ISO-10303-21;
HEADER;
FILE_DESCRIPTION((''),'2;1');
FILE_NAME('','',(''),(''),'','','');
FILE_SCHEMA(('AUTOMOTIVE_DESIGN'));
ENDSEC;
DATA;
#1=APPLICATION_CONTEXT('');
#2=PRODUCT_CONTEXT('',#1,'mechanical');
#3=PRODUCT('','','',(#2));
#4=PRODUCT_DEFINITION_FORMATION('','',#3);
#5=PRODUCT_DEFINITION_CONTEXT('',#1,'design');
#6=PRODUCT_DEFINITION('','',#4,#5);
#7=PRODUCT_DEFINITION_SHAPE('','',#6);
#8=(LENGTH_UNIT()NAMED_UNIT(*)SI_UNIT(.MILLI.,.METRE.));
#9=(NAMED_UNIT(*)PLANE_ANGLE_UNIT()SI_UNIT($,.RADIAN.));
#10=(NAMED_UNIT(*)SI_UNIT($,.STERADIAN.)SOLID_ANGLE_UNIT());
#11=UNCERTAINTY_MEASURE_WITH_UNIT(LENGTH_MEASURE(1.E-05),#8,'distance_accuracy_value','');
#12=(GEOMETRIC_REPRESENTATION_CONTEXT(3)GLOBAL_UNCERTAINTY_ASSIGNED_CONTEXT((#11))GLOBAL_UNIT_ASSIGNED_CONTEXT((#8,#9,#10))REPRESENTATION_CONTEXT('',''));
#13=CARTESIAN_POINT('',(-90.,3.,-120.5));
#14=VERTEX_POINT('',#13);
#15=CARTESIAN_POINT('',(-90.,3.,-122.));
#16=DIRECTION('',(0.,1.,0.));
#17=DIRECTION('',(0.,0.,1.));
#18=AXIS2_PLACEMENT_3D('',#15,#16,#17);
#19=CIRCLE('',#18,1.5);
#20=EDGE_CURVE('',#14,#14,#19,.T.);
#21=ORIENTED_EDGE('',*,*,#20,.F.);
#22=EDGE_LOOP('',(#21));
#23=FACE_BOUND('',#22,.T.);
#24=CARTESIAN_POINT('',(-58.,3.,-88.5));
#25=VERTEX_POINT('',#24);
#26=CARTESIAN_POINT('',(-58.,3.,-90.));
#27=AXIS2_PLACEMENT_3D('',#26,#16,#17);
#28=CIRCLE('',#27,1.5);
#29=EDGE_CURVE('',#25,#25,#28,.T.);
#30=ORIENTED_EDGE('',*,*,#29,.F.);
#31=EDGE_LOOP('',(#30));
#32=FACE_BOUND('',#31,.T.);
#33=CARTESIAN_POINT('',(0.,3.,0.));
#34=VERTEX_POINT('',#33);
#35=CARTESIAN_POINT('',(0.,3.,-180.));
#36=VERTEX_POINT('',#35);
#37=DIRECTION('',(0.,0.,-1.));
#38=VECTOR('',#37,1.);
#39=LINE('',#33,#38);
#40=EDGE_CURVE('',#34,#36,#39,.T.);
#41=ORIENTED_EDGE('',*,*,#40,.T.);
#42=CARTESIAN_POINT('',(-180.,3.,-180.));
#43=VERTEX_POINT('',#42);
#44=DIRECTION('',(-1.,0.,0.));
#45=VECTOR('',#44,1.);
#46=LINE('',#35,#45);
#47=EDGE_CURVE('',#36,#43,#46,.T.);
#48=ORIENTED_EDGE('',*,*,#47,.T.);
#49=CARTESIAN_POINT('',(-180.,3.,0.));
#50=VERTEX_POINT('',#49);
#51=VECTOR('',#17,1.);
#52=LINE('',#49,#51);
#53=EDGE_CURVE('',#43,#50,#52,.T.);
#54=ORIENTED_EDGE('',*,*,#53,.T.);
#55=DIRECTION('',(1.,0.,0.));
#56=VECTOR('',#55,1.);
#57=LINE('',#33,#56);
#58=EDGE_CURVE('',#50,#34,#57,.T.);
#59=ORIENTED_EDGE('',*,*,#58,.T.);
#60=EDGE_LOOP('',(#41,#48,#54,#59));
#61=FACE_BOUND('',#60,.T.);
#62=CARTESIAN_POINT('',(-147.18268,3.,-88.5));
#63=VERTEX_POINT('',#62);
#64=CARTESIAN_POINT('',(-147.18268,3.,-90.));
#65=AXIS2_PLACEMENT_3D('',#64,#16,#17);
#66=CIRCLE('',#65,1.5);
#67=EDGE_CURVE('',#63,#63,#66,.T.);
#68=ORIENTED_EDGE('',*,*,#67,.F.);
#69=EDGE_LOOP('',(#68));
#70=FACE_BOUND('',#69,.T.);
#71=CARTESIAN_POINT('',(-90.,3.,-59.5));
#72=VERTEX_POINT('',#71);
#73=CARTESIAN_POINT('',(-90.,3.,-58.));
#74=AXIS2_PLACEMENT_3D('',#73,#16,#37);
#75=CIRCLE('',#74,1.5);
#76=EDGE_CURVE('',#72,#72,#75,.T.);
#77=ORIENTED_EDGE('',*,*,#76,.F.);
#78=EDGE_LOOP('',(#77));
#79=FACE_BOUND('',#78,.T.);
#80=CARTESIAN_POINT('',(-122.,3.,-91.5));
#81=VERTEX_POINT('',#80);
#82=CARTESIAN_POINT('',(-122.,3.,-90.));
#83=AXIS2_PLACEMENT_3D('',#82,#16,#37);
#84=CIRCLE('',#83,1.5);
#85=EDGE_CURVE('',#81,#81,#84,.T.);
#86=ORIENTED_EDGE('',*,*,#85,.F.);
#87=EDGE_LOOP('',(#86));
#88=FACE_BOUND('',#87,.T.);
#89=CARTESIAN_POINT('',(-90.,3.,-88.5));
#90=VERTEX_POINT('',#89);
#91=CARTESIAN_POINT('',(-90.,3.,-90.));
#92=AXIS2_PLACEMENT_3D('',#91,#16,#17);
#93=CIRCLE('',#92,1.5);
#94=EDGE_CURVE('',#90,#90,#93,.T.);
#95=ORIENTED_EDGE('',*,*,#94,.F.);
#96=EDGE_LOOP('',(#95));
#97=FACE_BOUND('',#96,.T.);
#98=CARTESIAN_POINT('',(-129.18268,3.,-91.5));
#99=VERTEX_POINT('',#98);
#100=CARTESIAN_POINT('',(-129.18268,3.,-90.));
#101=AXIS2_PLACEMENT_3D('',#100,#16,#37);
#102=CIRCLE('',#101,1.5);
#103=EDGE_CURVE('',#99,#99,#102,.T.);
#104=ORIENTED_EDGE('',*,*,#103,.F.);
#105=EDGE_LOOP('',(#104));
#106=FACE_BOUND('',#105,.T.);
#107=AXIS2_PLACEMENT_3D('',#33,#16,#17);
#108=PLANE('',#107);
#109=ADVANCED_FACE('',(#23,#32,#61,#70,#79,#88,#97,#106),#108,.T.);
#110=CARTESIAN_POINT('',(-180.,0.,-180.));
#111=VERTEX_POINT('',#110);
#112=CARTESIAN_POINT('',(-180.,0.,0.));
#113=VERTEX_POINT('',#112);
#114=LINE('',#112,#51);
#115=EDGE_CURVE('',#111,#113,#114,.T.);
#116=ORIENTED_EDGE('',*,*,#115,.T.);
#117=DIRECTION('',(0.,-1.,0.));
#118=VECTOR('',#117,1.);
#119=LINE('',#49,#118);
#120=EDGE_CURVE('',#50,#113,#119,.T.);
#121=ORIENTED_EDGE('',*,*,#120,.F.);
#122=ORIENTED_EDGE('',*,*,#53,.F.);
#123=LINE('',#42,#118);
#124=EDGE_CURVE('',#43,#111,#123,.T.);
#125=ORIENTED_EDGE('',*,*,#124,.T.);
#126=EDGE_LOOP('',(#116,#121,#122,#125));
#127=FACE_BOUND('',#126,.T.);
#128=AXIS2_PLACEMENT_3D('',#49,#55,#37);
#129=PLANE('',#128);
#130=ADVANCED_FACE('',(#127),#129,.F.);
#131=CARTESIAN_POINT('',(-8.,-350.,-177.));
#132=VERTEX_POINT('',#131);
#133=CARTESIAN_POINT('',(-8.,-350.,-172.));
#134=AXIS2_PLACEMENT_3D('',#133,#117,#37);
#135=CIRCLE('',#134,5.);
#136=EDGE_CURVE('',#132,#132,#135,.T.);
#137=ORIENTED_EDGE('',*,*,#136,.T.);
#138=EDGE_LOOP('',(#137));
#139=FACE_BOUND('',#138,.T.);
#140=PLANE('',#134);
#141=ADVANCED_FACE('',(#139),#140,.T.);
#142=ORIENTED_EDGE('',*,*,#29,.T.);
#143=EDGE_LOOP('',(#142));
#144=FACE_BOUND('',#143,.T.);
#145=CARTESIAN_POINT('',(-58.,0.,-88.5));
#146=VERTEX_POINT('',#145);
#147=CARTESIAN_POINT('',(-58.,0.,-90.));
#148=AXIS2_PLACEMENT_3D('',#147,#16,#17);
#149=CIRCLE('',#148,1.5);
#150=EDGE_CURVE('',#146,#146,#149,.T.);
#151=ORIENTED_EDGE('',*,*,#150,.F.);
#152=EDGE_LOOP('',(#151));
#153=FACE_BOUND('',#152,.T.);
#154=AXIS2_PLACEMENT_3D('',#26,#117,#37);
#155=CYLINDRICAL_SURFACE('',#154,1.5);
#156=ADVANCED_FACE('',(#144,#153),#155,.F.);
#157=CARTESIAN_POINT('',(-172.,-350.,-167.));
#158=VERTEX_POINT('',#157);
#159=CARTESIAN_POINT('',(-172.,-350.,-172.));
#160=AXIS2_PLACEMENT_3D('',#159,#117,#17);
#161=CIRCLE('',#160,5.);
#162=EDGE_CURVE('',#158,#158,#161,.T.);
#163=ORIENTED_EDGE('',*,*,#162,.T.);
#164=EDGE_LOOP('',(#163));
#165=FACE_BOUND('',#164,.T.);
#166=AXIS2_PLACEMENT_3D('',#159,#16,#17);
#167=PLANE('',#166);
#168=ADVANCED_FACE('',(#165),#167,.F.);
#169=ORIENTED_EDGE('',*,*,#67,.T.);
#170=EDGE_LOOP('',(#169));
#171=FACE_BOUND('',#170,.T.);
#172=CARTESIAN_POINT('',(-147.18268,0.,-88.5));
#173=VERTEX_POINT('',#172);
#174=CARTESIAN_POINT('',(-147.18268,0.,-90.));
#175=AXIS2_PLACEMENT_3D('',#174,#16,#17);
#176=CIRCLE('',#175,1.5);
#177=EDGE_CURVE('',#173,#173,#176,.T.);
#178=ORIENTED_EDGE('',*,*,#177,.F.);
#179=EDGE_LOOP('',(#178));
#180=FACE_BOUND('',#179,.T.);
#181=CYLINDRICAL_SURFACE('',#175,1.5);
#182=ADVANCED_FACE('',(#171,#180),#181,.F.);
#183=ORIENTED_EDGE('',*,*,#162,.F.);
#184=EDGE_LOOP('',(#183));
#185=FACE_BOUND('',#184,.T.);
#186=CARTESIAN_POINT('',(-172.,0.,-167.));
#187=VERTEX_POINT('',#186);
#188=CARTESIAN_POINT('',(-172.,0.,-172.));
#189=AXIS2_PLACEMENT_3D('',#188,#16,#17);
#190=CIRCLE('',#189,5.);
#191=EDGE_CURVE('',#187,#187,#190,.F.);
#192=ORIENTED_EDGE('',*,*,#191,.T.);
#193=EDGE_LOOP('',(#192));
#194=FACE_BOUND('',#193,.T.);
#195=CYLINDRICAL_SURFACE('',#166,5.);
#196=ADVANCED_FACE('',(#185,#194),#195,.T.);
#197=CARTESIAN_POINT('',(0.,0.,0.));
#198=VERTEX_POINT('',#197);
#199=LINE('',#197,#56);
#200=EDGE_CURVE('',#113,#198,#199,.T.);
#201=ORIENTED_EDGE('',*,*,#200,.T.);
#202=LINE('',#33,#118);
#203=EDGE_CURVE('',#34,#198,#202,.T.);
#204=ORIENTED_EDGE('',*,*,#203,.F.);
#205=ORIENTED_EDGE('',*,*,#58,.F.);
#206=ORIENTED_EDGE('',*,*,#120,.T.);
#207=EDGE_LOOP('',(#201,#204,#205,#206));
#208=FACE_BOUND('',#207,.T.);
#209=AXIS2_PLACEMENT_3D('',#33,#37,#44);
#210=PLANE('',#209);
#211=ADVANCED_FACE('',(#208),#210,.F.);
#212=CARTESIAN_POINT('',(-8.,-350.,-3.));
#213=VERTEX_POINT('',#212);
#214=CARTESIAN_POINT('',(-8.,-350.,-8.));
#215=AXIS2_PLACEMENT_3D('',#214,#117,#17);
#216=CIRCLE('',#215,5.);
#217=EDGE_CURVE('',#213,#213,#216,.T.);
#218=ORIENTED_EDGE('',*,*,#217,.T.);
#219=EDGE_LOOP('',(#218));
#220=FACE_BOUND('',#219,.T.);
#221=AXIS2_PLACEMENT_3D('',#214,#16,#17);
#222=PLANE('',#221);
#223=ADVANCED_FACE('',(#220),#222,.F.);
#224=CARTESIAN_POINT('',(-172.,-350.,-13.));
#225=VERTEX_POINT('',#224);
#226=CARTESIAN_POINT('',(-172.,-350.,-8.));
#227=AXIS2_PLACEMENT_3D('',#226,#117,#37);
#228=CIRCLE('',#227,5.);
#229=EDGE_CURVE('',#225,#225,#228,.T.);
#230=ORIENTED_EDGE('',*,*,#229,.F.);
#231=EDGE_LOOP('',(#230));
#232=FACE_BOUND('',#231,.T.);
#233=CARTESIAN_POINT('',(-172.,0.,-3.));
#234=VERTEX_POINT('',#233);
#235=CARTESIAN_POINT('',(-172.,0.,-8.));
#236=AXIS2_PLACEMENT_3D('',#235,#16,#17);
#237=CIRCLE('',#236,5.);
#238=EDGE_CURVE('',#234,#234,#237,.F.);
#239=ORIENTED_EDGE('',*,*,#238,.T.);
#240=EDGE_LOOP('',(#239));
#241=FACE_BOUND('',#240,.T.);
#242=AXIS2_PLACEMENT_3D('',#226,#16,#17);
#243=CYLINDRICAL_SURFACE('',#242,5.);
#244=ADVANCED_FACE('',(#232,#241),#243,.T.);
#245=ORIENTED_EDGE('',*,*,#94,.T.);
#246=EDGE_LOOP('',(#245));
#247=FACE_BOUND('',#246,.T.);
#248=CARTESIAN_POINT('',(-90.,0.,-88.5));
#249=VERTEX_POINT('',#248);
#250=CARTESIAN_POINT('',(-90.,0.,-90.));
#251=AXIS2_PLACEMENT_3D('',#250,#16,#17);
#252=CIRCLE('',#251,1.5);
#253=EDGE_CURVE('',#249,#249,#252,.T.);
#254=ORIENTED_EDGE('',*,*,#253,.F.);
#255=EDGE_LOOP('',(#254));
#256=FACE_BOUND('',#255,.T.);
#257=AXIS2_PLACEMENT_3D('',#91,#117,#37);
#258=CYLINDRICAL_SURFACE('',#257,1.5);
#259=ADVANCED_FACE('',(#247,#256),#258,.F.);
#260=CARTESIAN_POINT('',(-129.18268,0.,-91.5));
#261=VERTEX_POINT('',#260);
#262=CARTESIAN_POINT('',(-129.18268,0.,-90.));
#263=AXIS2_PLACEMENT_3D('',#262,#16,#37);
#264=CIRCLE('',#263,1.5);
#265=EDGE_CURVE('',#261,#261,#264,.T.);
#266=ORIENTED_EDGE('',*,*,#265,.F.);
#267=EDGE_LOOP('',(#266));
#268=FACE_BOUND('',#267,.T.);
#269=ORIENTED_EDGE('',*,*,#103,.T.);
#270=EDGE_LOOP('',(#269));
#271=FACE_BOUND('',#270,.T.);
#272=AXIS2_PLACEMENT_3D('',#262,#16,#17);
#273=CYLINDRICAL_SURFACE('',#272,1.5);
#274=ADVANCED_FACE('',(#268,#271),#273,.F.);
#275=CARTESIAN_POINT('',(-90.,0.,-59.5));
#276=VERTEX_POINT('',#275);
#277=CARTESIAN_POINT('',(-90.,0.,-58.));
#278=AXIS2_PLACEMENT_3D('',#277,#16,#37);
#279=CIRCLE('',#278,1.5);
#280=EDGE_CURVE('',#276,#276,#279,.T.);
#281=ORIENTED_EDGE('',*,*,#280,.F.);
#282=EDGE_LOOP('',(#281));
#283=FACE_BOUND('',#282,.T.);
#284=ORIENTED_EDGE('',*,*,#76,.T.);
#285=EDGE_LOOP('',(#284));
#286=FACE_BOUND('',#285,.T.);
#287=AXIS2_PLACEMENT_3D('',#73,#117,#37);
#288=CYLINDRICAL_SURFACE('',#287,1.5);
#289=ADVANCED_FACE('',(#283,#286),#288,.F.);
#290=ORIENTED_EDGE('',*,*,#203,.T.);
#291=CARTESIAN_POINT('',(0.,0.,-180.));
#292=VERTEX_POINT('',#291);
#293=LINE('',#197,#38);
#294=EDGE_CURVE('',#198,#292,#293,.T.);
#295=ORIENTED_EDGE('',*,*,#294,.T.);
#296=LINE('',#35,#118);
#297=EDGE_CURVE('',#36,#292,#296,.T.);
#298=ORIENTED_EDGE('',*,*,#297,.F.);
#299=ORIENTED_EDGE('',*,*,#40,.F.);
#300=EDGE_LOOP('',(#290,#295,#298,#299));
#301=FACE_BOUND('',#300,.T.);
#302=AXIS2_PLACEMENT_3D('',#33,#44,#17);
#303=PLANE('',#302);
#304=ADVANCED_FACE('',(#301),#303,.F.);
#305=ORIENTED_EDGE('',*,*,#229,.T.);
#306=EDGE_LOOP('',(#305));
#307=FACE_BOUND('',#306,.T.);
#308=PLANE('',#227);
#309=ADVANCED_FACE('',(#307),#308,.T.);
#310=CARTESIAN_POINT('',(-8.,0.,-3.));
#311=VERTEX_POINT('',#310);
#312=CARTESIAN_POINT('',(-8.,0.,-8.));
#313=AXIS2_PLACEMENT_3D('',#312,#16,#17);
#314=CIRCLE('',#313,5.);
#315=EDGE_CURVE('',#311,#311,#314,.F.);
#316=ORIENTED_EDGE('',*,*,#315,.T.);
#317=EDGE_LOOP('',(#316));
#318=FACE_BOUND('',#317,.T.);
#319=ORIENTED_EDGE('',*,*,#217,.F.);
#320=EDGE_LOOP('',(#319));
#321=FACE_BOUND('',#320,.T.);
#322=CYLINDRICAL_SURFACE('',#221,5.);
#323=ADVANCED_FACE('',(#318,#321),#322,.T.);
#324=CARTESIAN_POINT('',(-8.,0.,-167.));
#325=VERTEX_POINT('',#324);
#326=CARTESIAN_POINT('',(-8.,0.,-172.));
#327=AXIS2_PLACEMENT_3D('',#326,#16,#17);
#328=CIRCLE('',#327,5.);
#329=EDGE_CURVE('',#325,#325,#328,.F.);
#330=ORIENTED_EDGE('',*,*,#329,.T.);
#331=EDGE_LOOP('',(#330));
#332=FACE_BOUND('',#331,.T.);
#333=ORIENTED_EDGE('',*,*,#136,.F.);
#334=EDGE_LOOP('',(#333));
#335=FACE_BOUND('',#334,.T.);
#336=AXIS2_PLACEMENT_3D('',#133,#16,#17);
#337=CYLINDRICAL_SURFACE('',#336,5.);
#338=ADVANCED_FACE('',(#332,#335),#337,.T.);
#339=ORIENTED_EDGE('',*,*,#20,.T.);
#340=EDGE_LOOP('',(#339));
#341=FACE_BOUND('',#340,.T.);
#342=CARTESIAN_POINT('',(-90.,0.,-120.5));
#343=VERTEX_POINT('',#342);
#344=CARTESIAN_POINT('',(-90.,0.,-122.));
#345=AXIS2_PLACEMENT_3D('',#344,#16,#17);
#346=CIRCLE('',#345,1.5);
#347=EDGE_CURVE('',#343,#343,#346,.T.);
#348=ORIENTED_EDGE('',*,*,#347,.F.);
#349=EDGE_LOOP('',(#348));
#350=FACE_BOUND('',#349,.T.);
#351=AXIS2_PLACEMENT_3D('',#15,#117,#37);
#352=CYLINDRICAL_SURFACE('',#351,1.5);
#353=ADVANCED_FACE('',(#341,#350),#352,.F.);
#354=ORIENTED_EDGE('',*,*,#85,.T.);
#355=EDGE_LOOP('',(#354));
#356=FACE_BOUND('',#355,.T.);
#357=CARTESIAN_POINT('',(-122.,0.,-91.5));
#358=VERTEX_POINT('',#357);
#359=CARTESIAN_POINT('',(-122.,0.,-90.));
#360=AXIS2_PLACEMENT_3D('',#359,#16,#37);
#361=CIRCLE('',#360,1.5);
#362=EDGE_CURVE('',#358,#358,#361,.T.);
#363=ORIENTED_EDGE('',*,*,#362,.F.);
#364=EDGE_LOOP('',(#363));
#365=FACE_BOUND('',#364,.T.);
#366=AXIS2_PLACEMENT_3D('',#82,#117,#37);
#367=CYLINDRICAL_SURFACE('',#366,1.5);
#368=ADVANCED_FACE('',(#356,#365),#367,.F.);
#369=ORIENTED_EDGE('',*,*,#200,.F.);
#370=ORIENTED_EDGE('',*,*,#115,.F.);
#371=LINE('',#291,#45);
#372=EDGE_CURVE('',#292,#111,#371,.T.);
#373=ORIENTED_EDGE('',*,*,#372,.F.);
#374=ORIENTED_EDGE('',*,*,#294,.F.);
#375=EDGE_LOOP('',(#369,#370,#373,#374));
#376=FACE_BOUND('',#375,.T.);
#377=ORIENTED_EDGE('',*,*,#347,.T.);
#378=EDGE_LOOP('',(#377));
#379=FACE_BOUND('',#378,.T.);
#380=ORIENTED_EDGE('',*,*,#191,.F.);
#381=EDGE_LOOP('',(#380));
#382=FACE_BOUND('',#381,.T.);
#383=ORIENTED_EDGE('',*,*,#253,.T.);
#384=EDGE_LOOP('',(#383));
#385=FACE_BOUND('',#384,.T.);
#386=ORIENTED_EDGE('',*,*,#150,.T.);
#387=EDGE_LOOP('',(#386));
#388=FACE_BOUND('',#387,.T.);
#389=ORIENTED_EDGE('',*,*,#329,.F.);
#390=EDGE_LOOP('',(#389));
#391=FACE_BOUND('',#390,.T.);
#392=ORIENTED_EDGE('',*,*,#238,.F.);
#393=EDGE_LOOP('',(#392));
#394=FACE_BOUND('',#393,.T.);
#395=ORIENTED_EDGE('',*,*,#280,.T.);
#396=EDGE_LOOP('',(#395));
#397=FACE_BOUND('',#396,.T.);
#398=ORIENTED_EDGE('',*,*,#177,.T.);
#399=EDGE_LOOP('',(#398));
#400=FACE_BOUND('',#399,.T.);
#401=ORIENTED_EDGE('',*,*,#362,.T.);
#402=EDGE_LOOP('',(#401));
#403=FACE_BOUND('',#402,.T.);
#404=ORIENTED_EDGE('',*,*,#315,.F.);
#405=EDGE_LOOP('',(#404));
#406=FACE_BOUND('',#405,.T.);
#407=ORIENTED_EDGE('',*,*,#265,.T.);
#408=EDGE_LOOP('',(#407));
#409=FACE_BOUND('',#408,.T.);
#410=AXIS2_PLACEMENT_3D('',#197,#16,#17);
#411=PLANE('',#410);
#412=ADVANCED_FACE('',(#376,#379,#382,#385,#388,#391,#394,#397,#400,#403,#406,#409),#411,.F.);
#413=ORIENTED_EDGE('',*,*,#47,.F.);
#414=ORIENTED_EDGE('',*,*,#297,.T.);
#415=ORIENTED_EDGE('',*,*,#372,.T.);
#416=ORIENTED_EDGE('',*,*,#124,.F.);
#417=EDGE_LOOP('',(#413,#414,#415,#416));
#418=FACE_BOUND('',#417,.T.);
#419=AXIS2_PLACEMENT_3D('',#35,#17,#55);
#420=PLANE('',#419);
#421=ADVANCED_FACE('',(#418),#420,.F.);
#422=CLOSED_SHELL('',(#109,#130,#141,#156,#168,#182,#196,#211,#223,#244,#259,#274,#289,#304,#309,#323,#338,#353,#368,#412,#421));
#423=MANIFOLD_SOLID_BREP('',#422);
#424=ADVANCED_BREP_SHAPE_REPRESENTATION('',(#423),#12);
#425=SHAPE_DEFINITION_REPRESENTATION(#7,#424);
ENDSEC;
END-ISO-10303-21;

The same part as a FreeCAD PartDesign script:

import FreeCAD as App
import Part
import Sketcher

V = App.Vector
Q = App.Units.Quantity

doc = App.newDocument("Part")
body = doc.addObject("PartDesign::Body", "Body")

sketch1 = body.newObject("Sketcher::SketchObject", "Sketch")
sketch1.AttachmentSupport = (doc.getObject("XZ_Plane"), [""])
sketch1.MapMode = "FlatFace"
sketch1.addGeometry([
    Part.LineSegment(V(-180, -180, 0), V(-180, 0, 0)),
    Part.LineSegment(V(-180, 0, 0), V(0, 0, 0)),
    Part.LineSegment(V(0, 0, 0), V(0, -180, 0)),
    Part.LineSegment(V(0, -180, 0), V(-180, -180, 0)),
    Part.Circle(V(-90, -58, 0), V(0, 0, 1), 1.5),
    Part.Circle(V(-122, -90, 0), V(0, 0, 1), 1.5),
    Part.Circle(V(-90, -90, 0), V(0, 0, 1), 1.5),
    Part.Circle(V(-58, -90, 0), V(0, 0, 1), 1.5),
    Part.Circle(V(-90, -122, 0), V(0, 0, 1), 1.5),
], False)
sketch1.addConstraint([
    Sketcher.Constraint("Coincident", 0, 2, 1, 1),
    Sketcher.Constraint("Coincident", 1, 2, 2, 1),
    Sketcher.Constraint("Coincident", 2, 2, 3, 1),
    Sketcher.Constraint("Coincident", 3, 2, 0, 1),
    Sketcher.Constraint("Vertical", 0),
    Sketcher.Constraint("Horizontal", 1),
    Sketcher.Constraint("Vertical", 2),
    Sketcher.Constraint("Horizontal", 3),
    Sketcher.Constraint("Coincident", 1, 2, -1, 1),
    Sketcher.Constraint("Equal", 4, 5),
    Sketcher.Constraint("Equal", 5, 6),
    Sketcher.Constraint("Equal", 6, 7),
    Sketcher.Constraint("Equal", 7, 8),
    Sketcher.Constraint("Horizontal", 5, 3, 6, 3),
    Sketcher.Constraint("Horizontal", 6, 3, 7, 3),
    Sketcher.Constraint("Vertical", 4, 3, 6, 3),
    Sketcher.Constraint("Vertical", 6, 3, 8, 3),
    Sketcher.Constraint("Equal", 3, 0),
    Sketcher.Constraint("Diameter", 4, Q("3 mm")),
    Sketcher.Constraint("DistanceX", 1, 1, 1, 2, Q("180 mm")),
    Sketcher.Constraint("DistanceX", 4, 3, -1, 1, Q("90 mm")),
    Sketcher.Constraint("DistanceY", 4, 3, -1, 1, Q("58 mm")),
    Sketcher.Constraint("DistanceX", 5, 3, -1, 1, Q("122 mm")),
    Sketcher.Constraint("DistanceY", 5, 3, -1, 1, Q("90 mm")),
    Sketcher.Constraint("DistanceX", 7, 3, -1, 1, Q("58 mm")),
    Sketcher.Constraint("DistanceY", 8, 3, -1, 1, Q("122 mm")),
])
pad1 = body.newObject("PartDesign::Pad", "Pad")
pad1.Profile = sketch1
pad1.Length = 3
pad1.Reversed = True

sketch2 = body.newObject("Sketcher::SketchObject", "Sketch001")
sketch2.AttachmentSupport = (doc.getObject("XZ_Plane"), [""])
sketch2.MapMode = "FlatFace"
sketch2.AttachmentOffset = App.Placement(V(0, 0, -3), App.Rotation())
sketch2.addGeometry([
    Part.Circle(V(-147.2, -90, 0), V(0, 0, 1), 1.5),
    Part.Circle(V(-129.2, -90, 0), V(0, 0, 1), 1.5),
], False)
sketch2.addConstraint([
    Sketcher.Constraint("Equal", 0, 1),
    Sketcher.Constraint("Horizontal", 0, 3, 1, 3),
    Sketcher.Constraint("Diameter", 0, Q("3 mm")),
    Sketcher.Constraint("DistanceY", 0, 3, -1, 1, Q("90 mm")),
    Sketcher.Constraint("DistanceX", 0, 3, 1, 3, Q("18 mm")),
    Sketcher.Constraint("DistanceX", 0, 3, -1, 1, Q("147.18268 mm")),
])
pocket1 = body.newObject("PartDesign::Pocket", "Pocket")
pocket1.Profile = sketch2
pocket1.Type = "ThroughAll"
pocket1.Reversed = True

sketch3 = body.newObject("Sketcher::SketchObject", "Sketch002")
sketch3.AttachmentSupport = (doc.getObject("XZ_Plane"), [""])
sketch3.MapMode = "FlatFace"
sketch3.addGeometry([
    Part.Circle(V(-172, -8, 0), V(0, 0, 1), 5),
    Part.Circle(V(-8, -8, 0), V(0, 0, 1), 5),
    Part.Circle(V(-8, -172, 0), V(0, 0, 1), 5),
    Part.Circle(V(-172, -172, 0), V(0, 0, 1), 5),
], False)
sketch3.addConstraint([
    Sketcher.Constraint("Equal", 0, 1),
    Sketcher.Constraint("Equal", 1, 2),
    Sketcher.Constraint("Equal", 2, 3),
    Sketcher.Constraint("Horizontal", 0, 3, 1, 3),
    Sketcher.Constraint("Horizontal", 2, 3, 3, 3),
    Sketcher.Constraint("Vertical", 1, 3, 2, 3),
    Sketcher.Constraint("Vertical", 0, 3, 3, 3),
    Sketcher.Constraint("Diameter", 0, Q("10 mm")),
    Sketcher.Constraint("DistanceX", 0, 3, -1, 1, Q("172 mm")),
    Sketcher.Constraint("DistanceY", 0, 3, -1, 1, Q("8 mm")),
    Sketcher.Constraint("DistanceX", 1, 3, -1, 1, Q("8 mm")),
    Sketcher.Constraint("DistanceY", 2, 3, -1, 1, Q("172 mm")),
])
pad2 = body.newObject("PartDesign::Pad", "Pad001")
pad2.Profile = sketch3
pad2.Length = 350

doc.recompute()
